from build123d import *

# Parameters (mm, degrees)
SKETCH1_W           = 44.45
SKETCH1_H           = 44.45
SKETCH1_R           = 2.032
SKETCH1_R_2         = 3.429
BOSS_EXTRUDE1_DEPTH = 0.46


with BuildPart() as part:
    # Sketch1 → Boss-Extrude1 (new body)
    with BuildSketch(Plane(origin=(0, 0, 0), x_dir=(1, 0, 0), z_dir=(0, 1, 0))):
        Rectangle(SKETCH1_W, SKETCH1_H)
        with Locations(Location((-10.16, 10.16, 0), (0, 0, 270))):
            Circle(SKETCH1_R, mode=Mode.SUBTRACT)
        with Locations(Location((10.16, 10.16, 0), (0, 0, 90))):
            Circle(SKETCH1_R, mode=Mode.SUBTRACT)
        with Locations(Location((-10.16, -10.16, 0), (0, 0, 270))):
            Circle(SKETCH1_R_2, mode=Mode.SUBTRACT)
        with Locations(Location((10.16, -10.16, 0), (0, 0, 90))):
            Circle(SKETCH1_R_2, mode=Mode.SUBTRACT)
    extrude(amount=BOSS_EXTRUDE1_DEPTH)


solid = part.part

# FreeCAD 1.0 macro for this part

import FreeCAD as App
import Part
import Sketcher
from FreeCAD import Vector
Q = App.Units.Quantity

doc = App.newDocument("Part")
body = doc.addObject("PartDesign::Body", "Body")

# Sketch on XZ plane
sketch1 = body.newObject("Sketcher::SketchObject", "Sketch")
sketch1.AttachmentSupport = (doc.getObject("XZ_Plane"), [""])
sketch1.MapMode = "FlatFace"
sketch1.addGeometry([
    Part.LineSegment(Vector(-22.225, -22.225, 0), Vector(-22.225, 22.225, 0)),  # 0
    Part.LineSegment(Vector(-22.225, 22.225, 0), Vector(22.225, 22.225, 0)),  # 1
    Part.LineSegment(Vector(22.225, 22.225, 0), Vector(22.225, -22.225, 0)),  # 2
    Part.LineSegment(Vector(22.225, -22.225, 0), Vector(-22.225, -22.225, 0)),  # 3
    Part.Circle(Vector(-10.16, 10.16, 0), Vector(0, 0, 1), 3.429),  # 4
    Part.Circle(Vector(10.16, 10.16, 0), Vector(0, 0, 1), 3.429),  # 5
    Part.Circle(Vector(-10.16, -10.16, 0), Vector(0, 0, 1), 2.032),  # 6
    Part.Circle(Vector(10.16, -10.16, 0), Vector(0, 0, 1), 2.032),  # 7
], False)
sketch1.addConstraint([
    Sketcher.Constraint("Coincident", 0, 2, 1, 1),
    Sketcher.Constraint("Coincident", 1, 2, 2, 1),
    Sketcher.Constraint("Coincident", 2, 2, 3, 1),
    Sketcher.Constraint("Coincident", 3, 2, 0, 1),
    Sketcher.Constraint("Vertical", 0),
    Sketcher.Constraint("Horizontal", 1),
    Sketcher.Constraint("Vertical", 2),
    Sketcher.Constraint("Horizontal", 3),
    Sketcher.Constraint("Equal", 4, 5),
    Sketcher.Constraint("Equal", 6, 7),
    Sketcher.Constraint("Symmetric", 5, 3, 6, 3, -1, 1),
    Sketcher.Constraint("Symmetric", 4, 3, 7, 3, -1, 1),
    Sketcher.Constraint("Symmetric", 0, 2, 2, 2, -1, 1),
    Sketcher.Constraint("Symmetric", 4, 3, 5, 3, -2),
    Sketcher.Constraint("Equal", 3, 0),
    Sketcher.Constraint("Diameter", 4, Q("0.27 in")),
    Sketcher.Constraint("Diameter", 6, Q("0.16 in")),
    Sketcher.Constraint("DistanceX", 1, 1, 1, 2, Q("1.75 in")),
    Sketcher.Constraint("DistanceX", 4, 3, -1, 1, Q("0.4 in")),
    Sketcher.Constraint("DistanceY", -1, 1, 4, 3, Q("0.4 in")),
])
pad1 = body.newObject("PartDesign::Pad", "Pad")
pad1.Profile = sketch1
pad1.Length = 0.46
pad1.Reversed = True

doc.recompute()
